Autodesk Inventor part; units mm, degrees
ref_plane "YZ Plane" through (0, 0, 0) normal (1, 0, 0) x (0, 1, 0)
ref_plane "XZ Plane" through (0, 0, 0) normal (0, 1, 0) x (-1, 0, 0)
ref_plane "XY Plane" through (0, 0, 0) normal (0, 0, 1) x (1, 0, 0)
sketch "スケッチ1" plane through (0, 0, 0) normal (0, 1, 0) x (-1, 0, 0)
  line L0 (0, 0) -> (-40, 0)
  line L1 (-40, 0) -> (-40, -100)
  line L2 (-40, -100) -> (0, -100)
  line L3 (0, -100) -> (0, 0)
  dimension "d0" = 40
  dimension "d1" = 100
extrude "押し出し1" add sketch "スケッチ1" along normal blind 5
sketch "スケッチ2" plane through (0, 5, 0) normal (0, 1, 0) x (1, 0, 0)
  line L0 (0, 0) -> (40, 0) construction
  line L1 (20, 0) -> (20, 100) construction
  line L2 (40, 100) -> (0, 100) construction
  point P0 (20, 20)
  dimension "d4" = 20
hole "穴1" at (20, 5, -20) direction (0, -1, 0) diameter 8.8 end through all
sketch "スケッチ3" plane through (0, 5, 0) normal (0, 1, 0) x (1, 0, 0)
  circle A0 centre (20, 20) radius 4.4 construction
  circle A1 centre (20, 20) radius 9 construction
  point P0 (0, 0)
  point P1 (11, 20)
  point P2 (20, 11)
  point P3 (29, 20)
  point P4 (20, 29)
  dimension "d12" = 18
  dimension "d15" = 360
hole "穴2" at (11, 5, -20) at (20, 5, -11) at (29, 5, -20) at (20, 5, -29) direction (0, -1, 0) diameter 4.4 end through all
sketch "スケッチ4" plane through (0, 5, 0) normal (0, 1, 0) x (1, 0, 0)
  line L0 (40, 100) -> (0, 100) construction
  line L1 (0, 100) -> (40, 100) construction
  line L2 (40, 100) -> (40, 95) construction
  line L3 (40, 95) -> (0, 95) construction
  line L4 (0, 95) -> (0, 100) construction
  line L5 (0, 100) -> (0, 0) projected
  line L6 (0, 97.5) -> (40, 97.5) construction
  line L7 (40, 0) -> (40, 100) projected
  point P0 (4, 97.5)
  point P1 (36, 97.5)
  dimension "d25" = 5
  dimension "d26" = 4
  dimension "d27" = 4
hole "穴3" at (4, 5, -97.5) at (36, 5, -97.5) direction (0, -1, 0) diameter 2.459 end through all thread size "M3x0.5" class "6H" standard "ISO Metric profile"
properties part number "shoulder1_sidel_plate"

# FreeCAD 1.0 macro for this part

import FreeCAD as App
import Part
import Sketcher
from FreeCAD import Vector

doc = App.newDocument("Part")
body = doc.addObject("PartDesign::Body", "Body")

# Sketch on XZ plane
sketch1 = doc.addObject("Sketcher::SketchObject", "Sketch")
body.addObject(sketch1)
sketch1.AttachmentSupport = (doc.XZ_Plane, [""])
sketch1.MapMode = "FlatFace"
sketch1.addGeometry([
    Part.LineSegment(Vector(0, -100, 0), Vector(0, 0, 0)),
    Part.LineSegment(Vector(0, 0, 0), Vector(40, 0, 0)),
    Part.LineSegment(Vector(40, 0, 0), Vector(40, -100, 0)),
    Part.LineSegment(Vector(40, -100, 0), Vector(0, -100, 0)),
], False)
sketch1.addConstraint([
    Sketcher.Constraint("Coincident", 0, 2, 1, 1),
    Sketcher.Constraint("Coincident", 1, 2, 2, 1),
    Sketcher.Constraint("Coincident", 2, 2, 3, 1),
    Sketcher.Constraint("Coincident", 3, 2, 0, 1),
    Sketcher.Constraint("Vertical", 0),
    Sketcher.Constraint("Horizontal", 1),
    Sketcher.Constraint("Vertical", 2),
    Sketcher.Constraint("Horizontal", 3),
    Sketcher.Constraint("Coincident", 0, 2, -1, 1),
    Sketcher.Constraint("DistanceX", 1, 1, 1, 2, 40.0),
    Sketcher.Constraint("DistanceY", 0, 1, 0, 2, 100.0),
])
pad1 = doc.addObject("PartDesign::Pad", "Pad")
body.addObject(pad1)
pad1.Profile = sketch1
pad1.Length = 5
pad1.Reversed = True

# Sketch on XZ plane
sketch2 = doc.addObject("Sketcher::SketchObject", "Sketch001")
body.addObject(sketch2)
sketch2.AttachmentSupport = (doc.XZ_Plane, [""])
sketch2.MapMode = "FlatFace"
sketch2.AttachmentOffset = App.Placement(Vector(0, 0, -5), App.Rotation())
sketch2.addGeometry(Part.Circle(Vector(20, -20, 0), Vector(0, 0, 1), 4.4), False)
sketch2.addConstraint([
    Sketcher.Constraint("Diameter", 0, 8.8),
    Sketcher.Constraint("DistanceX", -1, 1, 0, 3, 20.0),
    Sketcher.Constraint("DistanceY", 0, 3, -1, 1, 20.0),
])
doc.recompute()
hole = doc.addObject("PartDesign::Hole", "Hole")
body.addObject(hole)
hole.Profile = sketch2
hole.ThreadType = "None"
hole.Diameter = 8.8
hole.DepthType = "ThroughAll"
hole.Reversed = True

# Sketch on XZ plane
sketch3 = doc.addObject("Sketcher::SketchObject", "Sketch002")
body.addObject(sketch3)
sketch3.AttachmentSupport = (doc.XZ_Plane, [""])
sketch3.MapMode = "FlatFace"
sketch3.AttachmentOffset = App.Placement(Vector(0, 0, -5), App.Rotation())
sketch3.addGeometry([
    Part.Circle(Vector(11, -20, 0), Vector(0, 0, 1), 2.2),
    Part.Circle(Vector(20, -11, 0), Vector(0, 0, 1), 2.2),
    Part.Circle(Vector(29, -20, 0), Vector(0, 0, 1), 2.2),
    Part.Circle(Vector(20, -29, 0), Vector(0, 0, 1), 2.2),
], False)
sketch3.addConstraint([
    Sketcher.Constraint("Equal", 0, 1),
    Sketcher.Constraint("Equal", 1, 2),
    Sketcher.Constraint("Equal", 2, 3),
    Sketcher.Constraint("Horizontal", 0, 3, 2, 3),
    Sketcher.Constraint("Vertical", 1, 3, 3, 3),
    Sketcher.Constraint("Diameter", 0, 4.4),
    Sketcher.Constraint("DistanceX", -1, 1, 0, 3, 11.0),
    Sketcher.Constraint("DistanceY", 0, 3, -1, 1, 20.0),
    Sketcher.Constraint("DistanceX", -1, 1, 1, 3, 20.0),
    Sketcher.Constraint("DistanceY", 1, 3, -1, 1, 11.0),
    Sketcher.Constraint("DistanceX", -1, 1, 2, 3, 29.0),
    Sketcher.Constraint("DistanceY", 3, 3, -1, 1, 29.0),
])
doc.recompute()
hole2 = doc.addObject("PartDesign::Hole", "Hole001")
body.addObject(hole2)
hole2.Profile = sketch3
hole2.ThreadType = "None"
hole2.Diameter = 4.4
hole2.DepthType = "ThroughAll"
hole2.Reversed = True

# Sketch on XZ plane
sketch4 = doc.addObject("Sketcher::SketchObject", "Sketch003")
body.addObject(sketch4)
sketch4.AttachmentSupport = (doc.XZ_Plane, [""])
sketch4.MapMode = "FlatFace"
sketch4.AttachmentOffset = App.Placement(Vector(0, 0, -5), App.Rotation())
sketch4.addGeometry([
    Part.Circle(Vector(4, -97.5, 0), Vector(0, 0, 1), 1.2),
    Part.Circle(Vector(36, -97.5, 0), Vector(0, 0, 1), 1.2),
], False)
sketch4.addConstraint([
    Sketcher.Constraint("Equal", 0, 1),
    Sketcher.Constraint("Horizontal", 0, 3, 1, 3),
    Sketcher.Constraint("Diameter", 0, 2.459),
    Sketcher.Constraint("DistanceX", -1, 1, 0, 3, 4.0),
    Sketcher.Constraint("DistanceX", -1, 1, 1, 3, 36.0),
    Sketcher.Constraint("DistanceY", 0, 3, -1, 1, 97.5),
])
doc.recompute()
hole3 = doc.addObject("PartDesign::Hole", "Hole002")
body.addObject(hole3)
hole3.Profile = sketch4
hole3.ThreadType = "None"
hole3.Diameter = 2.459
hole3.DepthType = "ThroughAll"
hole3.Reversed = True

doc.recompute()
